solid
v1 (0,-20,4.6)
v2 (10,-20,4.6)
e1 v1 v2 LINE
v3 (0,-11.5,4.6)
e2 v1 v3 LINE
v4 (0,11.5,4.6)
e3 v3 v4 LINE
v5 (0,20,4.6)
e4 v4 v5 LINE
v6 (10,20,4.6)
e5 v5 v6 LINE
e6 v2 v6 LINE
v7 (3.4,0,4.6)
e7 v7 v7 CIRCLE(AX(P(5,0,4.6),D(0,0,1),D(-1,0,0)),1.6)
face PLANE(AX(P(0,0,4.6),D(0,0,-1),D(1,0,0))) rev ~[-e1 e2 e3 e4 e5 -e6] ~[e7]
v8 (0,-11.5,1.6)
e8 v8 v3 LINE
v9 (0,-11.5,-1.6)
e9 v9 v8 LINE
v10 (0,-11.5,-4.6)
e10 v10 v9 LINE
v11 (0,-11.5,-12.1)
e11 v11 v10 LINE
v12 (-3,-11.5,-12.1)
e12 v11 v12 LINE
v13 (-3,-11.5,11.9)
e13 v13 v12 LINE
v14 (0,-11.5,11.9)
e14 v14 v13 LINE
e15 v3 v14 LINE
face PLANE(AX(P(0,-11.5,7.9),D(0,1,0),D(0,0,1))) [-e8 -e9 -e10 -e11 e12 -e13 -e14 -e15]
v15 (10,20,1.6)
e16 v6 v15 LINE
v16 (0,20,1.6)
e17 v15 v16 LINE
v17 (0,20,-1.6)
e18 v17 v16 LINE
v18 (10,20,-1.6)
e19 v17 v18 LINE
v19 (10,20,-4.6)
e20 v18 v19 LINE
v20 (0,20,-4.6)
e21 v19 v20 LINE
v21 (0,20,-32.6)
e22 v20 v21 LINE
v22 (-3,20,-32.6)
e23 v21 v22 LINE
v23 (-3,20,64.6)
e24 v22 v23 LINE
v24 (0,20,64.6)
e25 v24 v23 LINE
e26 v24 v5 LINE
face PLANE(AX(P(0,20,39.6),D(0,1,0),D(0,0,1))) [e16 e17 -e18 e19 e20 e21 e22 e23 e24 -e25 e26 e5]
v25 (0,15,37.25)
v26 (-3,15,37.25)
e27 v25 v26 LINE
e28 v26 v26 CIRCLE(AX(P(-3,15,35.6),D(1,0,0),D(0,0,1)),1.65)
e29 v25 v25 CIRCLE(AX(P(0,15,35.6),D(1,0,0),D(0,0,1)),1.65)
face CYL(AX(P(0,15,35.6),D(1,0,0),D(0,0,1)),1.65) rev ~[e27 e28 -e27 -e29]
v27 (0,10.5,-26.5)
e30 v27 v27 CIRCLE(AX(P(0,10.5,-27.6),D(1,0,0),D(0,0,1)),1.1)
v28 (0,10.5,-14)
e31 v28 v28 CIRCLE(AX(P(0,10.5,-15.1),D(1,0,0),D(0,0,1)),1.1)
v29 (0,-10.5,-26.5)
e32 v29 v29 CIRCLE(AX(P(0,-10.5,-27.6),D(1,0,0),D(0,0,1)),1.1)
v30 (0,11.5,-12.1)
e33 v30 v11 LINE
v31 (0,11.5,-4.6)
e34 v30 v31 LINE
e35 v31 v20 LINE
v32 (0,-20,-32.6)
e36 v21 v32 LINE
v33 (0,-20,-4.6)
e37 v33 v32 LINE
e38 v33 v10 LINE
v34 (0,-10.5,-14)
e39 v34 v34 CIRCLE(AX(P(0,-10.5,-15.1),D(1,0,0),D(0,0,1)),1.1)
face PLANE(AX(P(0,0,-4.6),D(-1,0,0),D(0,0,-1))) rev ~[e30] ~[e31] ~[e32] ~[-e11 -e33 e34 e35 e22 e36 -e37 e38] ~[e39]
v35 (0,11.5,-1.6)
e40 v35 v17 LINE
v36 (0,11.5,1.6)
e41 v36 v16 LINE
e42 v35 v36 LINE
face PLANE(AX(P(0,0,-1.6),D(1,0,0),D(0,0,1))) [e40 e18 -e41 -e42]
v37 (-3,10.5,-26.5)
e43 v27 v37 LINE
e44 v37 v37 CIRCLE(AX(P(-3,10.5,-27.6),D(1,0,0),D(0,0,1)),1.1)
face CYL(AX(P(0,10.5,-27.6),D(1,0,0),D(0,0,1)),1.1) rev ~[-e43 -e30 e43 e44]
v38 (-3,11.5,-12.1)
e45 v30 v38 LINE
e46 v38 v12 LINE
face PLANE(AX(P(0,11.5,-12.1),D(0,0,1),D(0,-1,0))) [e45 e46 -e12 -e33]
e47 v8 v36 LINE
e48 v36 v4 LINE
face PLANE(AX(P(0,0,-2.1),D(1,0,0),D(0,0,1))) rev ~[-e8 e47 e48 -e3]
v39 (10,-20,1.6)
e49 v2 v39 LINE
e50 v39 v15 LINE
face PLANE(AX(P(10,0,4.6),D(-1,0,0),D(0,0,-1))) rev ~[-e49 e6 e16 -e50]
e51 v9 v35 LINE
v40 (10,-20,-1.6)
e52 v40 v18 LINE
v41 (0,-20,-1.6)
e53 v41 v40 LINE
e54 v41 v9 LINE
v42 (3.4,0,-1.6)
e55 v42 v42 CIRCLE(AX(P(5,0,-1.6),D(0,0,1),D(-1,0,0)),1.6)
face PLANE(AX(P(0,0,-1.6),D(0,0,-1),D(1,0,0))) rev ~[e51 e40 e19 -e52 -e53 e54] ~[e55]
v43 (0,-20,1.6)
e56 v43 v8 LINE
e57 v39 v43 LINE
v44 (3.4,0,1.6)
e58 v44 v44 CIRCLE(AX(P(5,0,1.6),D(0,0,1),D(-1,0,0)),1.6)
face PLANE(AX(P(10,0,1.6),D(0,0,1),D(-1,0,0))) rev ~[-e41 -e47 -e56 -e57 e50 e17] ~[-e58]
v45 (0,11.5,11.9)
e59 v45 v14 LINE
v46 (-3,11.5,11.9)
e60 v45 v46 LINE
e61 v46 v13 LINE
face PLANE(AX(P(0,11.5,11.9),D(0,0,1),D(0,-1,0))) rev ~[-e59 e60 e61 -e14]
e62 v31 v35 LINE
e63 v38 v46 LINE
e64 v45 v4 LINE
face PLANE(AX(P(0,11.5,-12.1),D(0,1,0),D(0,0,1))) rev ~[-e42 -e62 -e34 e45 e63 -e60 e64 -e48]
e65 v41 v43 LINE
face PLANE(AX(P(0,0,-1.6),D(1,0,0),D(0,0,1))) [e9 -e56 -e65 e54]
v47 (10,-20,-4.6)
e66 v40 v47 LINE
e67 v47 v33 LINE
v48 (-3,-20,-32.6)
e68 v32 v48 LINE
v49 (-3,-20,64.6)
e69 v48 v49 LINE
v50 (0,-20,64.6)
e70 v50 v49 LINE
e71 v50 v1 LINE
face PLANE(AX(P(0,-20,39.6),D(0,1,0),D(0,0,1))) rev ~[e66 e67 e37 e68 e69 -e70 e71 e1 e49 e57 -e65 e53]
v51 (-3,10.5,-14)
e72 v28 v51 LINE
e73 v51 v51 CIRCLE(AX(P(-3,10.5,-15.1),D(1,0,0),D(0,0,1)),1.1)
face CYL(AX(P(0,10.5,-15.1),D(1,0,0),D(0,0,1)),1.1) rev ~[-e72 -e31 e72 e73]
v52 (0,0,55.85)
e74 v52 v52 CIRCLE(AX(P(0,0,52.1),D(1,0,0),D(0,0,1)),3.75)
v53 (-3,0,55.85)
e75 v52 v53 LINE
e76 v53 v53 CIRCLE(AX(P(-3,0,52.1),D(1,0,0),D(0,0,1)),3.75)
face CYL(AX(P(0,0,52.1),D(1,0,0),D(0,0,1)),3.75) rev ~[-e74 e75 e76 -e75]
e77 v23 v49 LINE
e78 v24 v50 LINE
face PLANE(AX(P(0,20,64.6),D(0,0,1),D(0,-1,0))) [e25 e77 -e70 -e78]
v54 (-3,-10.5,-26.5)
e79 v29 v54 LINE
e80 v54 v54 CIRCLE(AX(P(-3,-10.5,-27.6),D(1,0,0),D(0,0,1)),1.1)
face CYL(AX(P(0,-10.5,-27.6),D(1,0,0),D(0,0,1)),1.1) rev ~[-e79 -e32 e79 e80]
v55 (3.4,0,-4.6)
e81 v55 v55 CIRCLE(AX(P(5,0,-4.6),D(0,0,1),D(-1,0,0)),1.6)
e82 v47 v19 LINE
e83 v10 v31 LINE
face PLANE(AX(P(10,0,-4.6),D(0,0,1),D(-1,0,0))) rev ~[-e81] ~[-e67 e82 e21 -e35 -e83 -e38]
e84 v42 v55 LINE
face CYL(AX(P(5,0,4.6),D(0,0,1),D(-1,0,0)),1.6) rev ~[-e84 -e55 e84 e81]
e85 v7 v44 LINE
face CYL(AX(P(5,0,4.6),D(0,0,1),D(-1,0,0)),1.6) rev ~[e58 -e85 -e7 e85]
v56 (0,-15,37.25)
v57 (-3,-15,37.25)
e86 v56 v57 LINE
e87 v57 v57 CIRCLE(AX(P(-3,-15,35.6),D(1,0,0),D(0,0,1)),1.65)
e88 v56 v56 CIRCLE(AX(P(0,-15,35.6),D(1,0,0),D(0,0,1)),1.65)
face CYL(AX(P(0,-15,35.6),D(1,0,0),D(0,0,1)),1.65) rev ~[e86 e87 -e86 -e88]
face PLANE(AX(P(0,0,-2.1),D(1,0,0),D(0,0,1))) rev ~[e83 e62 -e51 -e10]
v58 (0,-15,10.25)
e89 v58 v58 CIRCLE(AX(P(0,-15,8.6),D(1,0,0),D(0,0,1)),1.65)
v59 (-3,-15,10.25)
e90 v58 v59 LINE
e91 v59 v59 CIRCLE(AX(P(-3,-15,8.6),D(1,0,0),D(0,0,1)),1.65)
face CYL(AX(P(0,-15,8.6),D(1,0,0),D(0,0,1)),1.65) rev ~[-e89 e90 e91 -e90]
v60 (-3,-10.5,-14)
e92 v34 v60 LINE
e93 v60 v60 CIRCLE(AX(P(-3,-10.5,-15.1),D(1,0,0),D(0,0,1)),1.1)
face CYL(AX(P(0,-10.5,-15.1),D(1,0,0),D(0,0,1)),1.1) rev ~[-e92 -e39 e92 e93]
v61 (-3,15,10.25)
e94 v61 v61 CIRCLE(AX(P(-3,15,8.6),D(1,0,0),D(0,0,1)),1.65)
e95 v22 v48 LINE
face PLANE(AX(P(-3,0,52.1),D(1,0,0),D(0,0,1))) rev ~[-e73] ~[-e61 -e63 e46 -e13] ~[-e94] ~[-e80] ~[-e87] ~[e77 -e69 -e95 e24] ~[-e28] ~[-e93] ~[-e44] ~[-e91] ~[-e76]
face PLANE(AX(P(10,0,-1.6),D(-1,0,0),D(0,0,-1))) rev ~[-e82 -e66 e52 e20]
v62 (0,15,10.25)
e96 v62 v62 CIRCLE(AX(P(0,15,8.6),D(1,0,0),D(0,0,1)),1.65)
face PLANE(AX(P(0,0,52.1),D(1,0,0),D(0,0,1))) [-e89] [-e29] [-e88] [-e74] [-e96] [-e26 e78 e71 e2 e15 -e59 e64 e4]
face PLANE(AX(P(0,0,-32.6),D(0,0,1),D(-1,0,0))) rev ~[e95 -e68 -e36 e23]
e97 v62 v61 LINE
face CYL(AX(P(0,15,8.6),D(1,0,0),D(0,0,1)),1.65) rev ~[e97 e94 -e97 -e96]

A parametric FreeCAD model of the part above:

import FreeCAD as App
import Part
import Sketcher

V = App.Vector


def add_polygon(sketch, points):
    """Adds a closed chain of lines whose ends are joined by coincident constraints."""
    first, n = sketch.GeometryCount, len(points)
    for a, b in zip(points, points[1:] + points[:1]):
        sketch.addGeometry(Part.LineSegment(App.Vector(*a, 0), App.Vector(*b, 0)), False)
    for i in range(n):
        sketch.addConstraint(Sketcher.Constraint("Coincident", first + i, 2, first + (i + 1) % n, 1))

doc = App.newDocument("Part")
body = doc.addObject("PartDesign::Body", "Body")

sketch1 = body.newObject("Sketcher::SketchObject", "Sketch")
sketch1.AttachmentSupport = (doc.getObject("XZ_Plane"), [""])
sketch1.MapMode = "FlatFace"
add_polygon(sketch1, [(0, 39.6), (-3, 39.6), (-3, -32.6), (0, -32.6), (0, -4.6), (10, -4.6), (10, -1.6), (0, -1.6), (0, 1.6), (10, 1.6), (10, 4.6), (0, 4.6)])
sketch1.addConstraint([
    Sketcher.Constraint("Horizontal", 0),
    Sketcher.Constraint("Vertical", 1),
    Sketcher.Constraint("Horizontal", 2),
    Sketcher.Constraint("Vertical", 3),
    Sketcher.Constraint("Horizontal", 4),
    Sketcher.Constraint("Vertical", 5),
    Sketcher.Constraint("Horizontal", 6),
    Sketcher.Constraint("Vertical", 7),
    Sketcher.Constraint("Horizontal", 8),
    Sketcher.Constraint("Vertical", 9),
    Sketcher.Constraint("Horizontal", 10),
    Sketcher.Constraint("Vertical", 11),
    Sketcher.Constraint("Symmetric", 6, 2, 7, 2, -1, 1),
    Sketcher.Constraint("Symmetric", 3, 2, 10, 2, -1, 1),
    Sketcher.Constraint("PointOnObject", 2, 2, -2),
    Sketcher.Constraint("Vertical", 5, 2, 8, 2),
    Sketcher.Constraint("Equal", 2, 5),
    Sketcher.Constraint("DistanceX", 0, 2, 0, 1, 3.0),
    Sketcher.Constraint("DistanceX", 4, 1, 4, 2, 10.0),
    Sketcher.Constraint("DistanceY", 3, 1, 3, 2, 28.0),
    Sketcher.Constraint("DistanceY", 11, 1, 11, 2, 35.0),
    Sketcher.Constraint("DistanceY", 1, 2, 1, 1, 72.2),
])
pad1 = body.newObject("PartDesign::Pad", "Pad")
pad1.Profile = sketch1
pad1.Length = 40
pad1.Midplane = True

sketch2 = body.newObject("Sketcher::SketchObject", "Sketch001")
sketch2.AttachmentSupport = (doc.getObject("XY_Plane"), [""])
sketch2.MapMode = "FlatFace"
sketch2.AttachmentOffset = App.Placement(V(0, 0, 4.6), App.Rotation())
sketch2.addGeometry(Part.Circle(V(5, 0, 0), V(0, 0, 1), 1.6), False)
sketch2.addConstraint([
    Sketcher.Constraint("PointOnObject", 0, 3, -1),
    Sketcher.Constraint("Diameter", 0, 3.2),
    Sketcher.Constraint("DistanceX", -1, 1, 0, 3, 5.0),
])
pocket1 = body.newObject("PartDesign::Pocket", "Pocket")
pocket1.Profile = sketch2
pocket1.Type = "ThroughAll"

sketch3 = body.newObject("Sketcher::SketchObject", "Sketch002")
sketch3.AttachmentSupport = (doc.getObject("YZ_Plane"), [""])
sketch3.MapMode = "FlatFace"
sketch3.addGeometry(Part.Circle(V(-10.5, -27.6, 0), V(0, 0, 1), 1.1), False)
sketch3.addGeometry(Part.Circle(V(-10.5, -15.1, 0), V(0, 0, 1), 1.1), False)
sketch3.addGeometry(Part.Circle(V(10.5, -27.6, 0), V(0, 0, 1), 1.1), False)
sketch3.addGeometry(Part.Circle(V(10.5, -15.1, 0), V(0, 0, 1), 1.1), False)
add_polygon(sketch3, [(-11.5, -12.1), (11.5, -12.1), (11.5, 7.9), (-11.5, 7.9)])
sketch3.addConstraint([
    Sketcher.Constraint("Horizontal", 4),
    Sketcher.Constraint("Vertical", 5),
    Sketcher.Constraint("Horizontal", 6),
    Sketcher.Constraint("Vertical", 7),
    Sketcher.Constraint("Equal", 0, 1),
    Sketcher.Constraint("Equal", 1, 2),
    Sketcher.Constraint("Equal", 2, 3),
    Sketcher.Constraint("Symmetric", 0, 3, 2, 3, -2),
    Sketcher.Constraint("Symmetric", 1, 3, 3, 3, -2),
    Sketcher.Constraint("Vertical", 0, 3, 1, 3),
    Sketcher.Constraint("Diameter", 0, 2.2),
    Sketcher.Constraint("DistanceX", 4, 1, 4, 2, 23.0),
    Sketcher.Constraint("DistanceY", 5, 1, 5, 2, 20.0),
    Sketcher.Constraint("DistanceX", 0, 3, 2, 3, 21.0),
    Sketcher.Constraint("DistanceX", 3, 3, 4, 2, 1.0),
    Sketcher.Constraint("DistanceY", 3, 3, 4, 2, 3.0),
    Sketcher.Constraint("DistanceY", 0, 3, -1, 1, 27.6),
    Sketcher.Constraint("DistanceY", 1, 3, -1, 1, 15.1),
])
pocket2 = body.newObject("PartDesign::Pocket", "Pocket001")
pocket2.Profile = sketch3
pocket2.Type = "ThroughAll"

sketch4 = body.newObject("Sketcher::SketchObject", "Sketch003")
sketch4.AttachmentSupport = (doc.getObject("YZ_Plane"), [""])
sketch4.MapMode = "FlatFace"
sketch4.addGeometry(Part.Circle(V(-15, 8.6, 0), V(0, 0, 1), 1.6), False)
sketch4.addGeometry(Part.Circle(V(-15, 35.6, 0), V(0, 0, 1), 1.6), False)
sketch4.addGeometry(Part.Circle(V(15, 35.6, 0), V(0, 0, 1), 1.6), False)
sketch4.addGeometry(Part.Circle(V(15, 8.6, 0), V(0, 0, 1), 1.6), False)
add_polygon(sketch4, [(-11.5, 7.9), (11.5, 7.9), (11.5, 11.9), (-11.5, 11.9)])
sketch4.addConstraint([
    Sketcher.Constraint("Horizontal", 4),
    Sketcher.Constraint("Vertical", 5),
    Sketcher.Constraint("Horizontal", 6),
    Sketcher.Constraint("Vertical", 7),
    Sketcher.Constraint("Equal", 0, 1),
    Sketcher.Constraint("Equal", 1, 2),
    Sketcher.Constraint("Equal", 2, 3),
    Sketcher.Constraint("Symmetric", 1, 3, 2, 3, -2),
    Sketcher.Constraint("Symmetric", 0, 3, 3, 3, -2),
    Sketcher.Constraint("Vertical", 0, 3, 1, 3),
    Sketcher.Constraint("Diameter", 0, 3.3),
    Sketcher.Constraint("DistanceX", 4, 1, 4, 2, 23.0),
    Sketcher.Constraint("DistanceY", 5, 1, 5, 2, 4.0),
    Sketcher.Constraint("DistanceX", 0, 3, -1, 1, 15.0),
    Sketcher.Constraint("DistanceY", 0, 3, 1, 3, 27.0),
    Sketcher.Constraint("DistanceY", -1, 1, 0, 3, 8.6),
    Sketcher.Constraint("DistanceX", -1, 1, 4, 2, 11.5),
    Sketcher.Constraint("DistanceY", -1, 1, 4, 2, 7.9),
])
pocket3 = body.newObject("PartDesign::Pocket", "Pocket002")
pocket3.Profile = sketch4
pocket3.Type = "ThroughAll"

sketch5 = body.newObject("Sketcher::SketchObject", "Sketch004")
sketch5.AttachmentSupport = (doc.getObject("YZ_Plane"), [""])
sketch5.MapMode = "FlatFace"
add_polygon(sketch5, [(-20, 39.6), (20, 39.6), (20, 64.6), (-20, 64.6)])
sketch5.addGeometry(Part.Circle(V(0, 52.1, 0), V(0, 0, 1), 3.8), False)
sketch5.addConstraint([
    Sketcher.Constraint("Horizontal", 0),
    Sketcher.Constraint("Vertical", 1),
    Sketcher.Constraint("Horizontal", 2),
    Sketcher.Constraint("Vertical", 3),
    Sketcher.Constraint("PointOnObject", 4, 3, -2),
    Sketcher.Constraint("Diameter", 4, 7.5),
    Sketcher.Constraint("DistanceX", 0, 1, 0, 2, 40.0),
    Sketcher.Constraint("DistanceY", 1, 1, 1, 2, 25.0),
    Sketcher.Constraint("DistanceX", -1, 1, 0, 2, 20.0),
    Sketcher.Constraint("DistanceY", -1, 1, 4, 3, 52.1),
    Sketcher.Constraint("DistanceY", -1, 1, 0, 2, 39.6),
])
pad2 = body.newObject("PartDesign::Pad", "Pad001")
pad2.Profile = sketch5
pad2.Length = 3
pad2.Reversed = True

doc.recompute()
